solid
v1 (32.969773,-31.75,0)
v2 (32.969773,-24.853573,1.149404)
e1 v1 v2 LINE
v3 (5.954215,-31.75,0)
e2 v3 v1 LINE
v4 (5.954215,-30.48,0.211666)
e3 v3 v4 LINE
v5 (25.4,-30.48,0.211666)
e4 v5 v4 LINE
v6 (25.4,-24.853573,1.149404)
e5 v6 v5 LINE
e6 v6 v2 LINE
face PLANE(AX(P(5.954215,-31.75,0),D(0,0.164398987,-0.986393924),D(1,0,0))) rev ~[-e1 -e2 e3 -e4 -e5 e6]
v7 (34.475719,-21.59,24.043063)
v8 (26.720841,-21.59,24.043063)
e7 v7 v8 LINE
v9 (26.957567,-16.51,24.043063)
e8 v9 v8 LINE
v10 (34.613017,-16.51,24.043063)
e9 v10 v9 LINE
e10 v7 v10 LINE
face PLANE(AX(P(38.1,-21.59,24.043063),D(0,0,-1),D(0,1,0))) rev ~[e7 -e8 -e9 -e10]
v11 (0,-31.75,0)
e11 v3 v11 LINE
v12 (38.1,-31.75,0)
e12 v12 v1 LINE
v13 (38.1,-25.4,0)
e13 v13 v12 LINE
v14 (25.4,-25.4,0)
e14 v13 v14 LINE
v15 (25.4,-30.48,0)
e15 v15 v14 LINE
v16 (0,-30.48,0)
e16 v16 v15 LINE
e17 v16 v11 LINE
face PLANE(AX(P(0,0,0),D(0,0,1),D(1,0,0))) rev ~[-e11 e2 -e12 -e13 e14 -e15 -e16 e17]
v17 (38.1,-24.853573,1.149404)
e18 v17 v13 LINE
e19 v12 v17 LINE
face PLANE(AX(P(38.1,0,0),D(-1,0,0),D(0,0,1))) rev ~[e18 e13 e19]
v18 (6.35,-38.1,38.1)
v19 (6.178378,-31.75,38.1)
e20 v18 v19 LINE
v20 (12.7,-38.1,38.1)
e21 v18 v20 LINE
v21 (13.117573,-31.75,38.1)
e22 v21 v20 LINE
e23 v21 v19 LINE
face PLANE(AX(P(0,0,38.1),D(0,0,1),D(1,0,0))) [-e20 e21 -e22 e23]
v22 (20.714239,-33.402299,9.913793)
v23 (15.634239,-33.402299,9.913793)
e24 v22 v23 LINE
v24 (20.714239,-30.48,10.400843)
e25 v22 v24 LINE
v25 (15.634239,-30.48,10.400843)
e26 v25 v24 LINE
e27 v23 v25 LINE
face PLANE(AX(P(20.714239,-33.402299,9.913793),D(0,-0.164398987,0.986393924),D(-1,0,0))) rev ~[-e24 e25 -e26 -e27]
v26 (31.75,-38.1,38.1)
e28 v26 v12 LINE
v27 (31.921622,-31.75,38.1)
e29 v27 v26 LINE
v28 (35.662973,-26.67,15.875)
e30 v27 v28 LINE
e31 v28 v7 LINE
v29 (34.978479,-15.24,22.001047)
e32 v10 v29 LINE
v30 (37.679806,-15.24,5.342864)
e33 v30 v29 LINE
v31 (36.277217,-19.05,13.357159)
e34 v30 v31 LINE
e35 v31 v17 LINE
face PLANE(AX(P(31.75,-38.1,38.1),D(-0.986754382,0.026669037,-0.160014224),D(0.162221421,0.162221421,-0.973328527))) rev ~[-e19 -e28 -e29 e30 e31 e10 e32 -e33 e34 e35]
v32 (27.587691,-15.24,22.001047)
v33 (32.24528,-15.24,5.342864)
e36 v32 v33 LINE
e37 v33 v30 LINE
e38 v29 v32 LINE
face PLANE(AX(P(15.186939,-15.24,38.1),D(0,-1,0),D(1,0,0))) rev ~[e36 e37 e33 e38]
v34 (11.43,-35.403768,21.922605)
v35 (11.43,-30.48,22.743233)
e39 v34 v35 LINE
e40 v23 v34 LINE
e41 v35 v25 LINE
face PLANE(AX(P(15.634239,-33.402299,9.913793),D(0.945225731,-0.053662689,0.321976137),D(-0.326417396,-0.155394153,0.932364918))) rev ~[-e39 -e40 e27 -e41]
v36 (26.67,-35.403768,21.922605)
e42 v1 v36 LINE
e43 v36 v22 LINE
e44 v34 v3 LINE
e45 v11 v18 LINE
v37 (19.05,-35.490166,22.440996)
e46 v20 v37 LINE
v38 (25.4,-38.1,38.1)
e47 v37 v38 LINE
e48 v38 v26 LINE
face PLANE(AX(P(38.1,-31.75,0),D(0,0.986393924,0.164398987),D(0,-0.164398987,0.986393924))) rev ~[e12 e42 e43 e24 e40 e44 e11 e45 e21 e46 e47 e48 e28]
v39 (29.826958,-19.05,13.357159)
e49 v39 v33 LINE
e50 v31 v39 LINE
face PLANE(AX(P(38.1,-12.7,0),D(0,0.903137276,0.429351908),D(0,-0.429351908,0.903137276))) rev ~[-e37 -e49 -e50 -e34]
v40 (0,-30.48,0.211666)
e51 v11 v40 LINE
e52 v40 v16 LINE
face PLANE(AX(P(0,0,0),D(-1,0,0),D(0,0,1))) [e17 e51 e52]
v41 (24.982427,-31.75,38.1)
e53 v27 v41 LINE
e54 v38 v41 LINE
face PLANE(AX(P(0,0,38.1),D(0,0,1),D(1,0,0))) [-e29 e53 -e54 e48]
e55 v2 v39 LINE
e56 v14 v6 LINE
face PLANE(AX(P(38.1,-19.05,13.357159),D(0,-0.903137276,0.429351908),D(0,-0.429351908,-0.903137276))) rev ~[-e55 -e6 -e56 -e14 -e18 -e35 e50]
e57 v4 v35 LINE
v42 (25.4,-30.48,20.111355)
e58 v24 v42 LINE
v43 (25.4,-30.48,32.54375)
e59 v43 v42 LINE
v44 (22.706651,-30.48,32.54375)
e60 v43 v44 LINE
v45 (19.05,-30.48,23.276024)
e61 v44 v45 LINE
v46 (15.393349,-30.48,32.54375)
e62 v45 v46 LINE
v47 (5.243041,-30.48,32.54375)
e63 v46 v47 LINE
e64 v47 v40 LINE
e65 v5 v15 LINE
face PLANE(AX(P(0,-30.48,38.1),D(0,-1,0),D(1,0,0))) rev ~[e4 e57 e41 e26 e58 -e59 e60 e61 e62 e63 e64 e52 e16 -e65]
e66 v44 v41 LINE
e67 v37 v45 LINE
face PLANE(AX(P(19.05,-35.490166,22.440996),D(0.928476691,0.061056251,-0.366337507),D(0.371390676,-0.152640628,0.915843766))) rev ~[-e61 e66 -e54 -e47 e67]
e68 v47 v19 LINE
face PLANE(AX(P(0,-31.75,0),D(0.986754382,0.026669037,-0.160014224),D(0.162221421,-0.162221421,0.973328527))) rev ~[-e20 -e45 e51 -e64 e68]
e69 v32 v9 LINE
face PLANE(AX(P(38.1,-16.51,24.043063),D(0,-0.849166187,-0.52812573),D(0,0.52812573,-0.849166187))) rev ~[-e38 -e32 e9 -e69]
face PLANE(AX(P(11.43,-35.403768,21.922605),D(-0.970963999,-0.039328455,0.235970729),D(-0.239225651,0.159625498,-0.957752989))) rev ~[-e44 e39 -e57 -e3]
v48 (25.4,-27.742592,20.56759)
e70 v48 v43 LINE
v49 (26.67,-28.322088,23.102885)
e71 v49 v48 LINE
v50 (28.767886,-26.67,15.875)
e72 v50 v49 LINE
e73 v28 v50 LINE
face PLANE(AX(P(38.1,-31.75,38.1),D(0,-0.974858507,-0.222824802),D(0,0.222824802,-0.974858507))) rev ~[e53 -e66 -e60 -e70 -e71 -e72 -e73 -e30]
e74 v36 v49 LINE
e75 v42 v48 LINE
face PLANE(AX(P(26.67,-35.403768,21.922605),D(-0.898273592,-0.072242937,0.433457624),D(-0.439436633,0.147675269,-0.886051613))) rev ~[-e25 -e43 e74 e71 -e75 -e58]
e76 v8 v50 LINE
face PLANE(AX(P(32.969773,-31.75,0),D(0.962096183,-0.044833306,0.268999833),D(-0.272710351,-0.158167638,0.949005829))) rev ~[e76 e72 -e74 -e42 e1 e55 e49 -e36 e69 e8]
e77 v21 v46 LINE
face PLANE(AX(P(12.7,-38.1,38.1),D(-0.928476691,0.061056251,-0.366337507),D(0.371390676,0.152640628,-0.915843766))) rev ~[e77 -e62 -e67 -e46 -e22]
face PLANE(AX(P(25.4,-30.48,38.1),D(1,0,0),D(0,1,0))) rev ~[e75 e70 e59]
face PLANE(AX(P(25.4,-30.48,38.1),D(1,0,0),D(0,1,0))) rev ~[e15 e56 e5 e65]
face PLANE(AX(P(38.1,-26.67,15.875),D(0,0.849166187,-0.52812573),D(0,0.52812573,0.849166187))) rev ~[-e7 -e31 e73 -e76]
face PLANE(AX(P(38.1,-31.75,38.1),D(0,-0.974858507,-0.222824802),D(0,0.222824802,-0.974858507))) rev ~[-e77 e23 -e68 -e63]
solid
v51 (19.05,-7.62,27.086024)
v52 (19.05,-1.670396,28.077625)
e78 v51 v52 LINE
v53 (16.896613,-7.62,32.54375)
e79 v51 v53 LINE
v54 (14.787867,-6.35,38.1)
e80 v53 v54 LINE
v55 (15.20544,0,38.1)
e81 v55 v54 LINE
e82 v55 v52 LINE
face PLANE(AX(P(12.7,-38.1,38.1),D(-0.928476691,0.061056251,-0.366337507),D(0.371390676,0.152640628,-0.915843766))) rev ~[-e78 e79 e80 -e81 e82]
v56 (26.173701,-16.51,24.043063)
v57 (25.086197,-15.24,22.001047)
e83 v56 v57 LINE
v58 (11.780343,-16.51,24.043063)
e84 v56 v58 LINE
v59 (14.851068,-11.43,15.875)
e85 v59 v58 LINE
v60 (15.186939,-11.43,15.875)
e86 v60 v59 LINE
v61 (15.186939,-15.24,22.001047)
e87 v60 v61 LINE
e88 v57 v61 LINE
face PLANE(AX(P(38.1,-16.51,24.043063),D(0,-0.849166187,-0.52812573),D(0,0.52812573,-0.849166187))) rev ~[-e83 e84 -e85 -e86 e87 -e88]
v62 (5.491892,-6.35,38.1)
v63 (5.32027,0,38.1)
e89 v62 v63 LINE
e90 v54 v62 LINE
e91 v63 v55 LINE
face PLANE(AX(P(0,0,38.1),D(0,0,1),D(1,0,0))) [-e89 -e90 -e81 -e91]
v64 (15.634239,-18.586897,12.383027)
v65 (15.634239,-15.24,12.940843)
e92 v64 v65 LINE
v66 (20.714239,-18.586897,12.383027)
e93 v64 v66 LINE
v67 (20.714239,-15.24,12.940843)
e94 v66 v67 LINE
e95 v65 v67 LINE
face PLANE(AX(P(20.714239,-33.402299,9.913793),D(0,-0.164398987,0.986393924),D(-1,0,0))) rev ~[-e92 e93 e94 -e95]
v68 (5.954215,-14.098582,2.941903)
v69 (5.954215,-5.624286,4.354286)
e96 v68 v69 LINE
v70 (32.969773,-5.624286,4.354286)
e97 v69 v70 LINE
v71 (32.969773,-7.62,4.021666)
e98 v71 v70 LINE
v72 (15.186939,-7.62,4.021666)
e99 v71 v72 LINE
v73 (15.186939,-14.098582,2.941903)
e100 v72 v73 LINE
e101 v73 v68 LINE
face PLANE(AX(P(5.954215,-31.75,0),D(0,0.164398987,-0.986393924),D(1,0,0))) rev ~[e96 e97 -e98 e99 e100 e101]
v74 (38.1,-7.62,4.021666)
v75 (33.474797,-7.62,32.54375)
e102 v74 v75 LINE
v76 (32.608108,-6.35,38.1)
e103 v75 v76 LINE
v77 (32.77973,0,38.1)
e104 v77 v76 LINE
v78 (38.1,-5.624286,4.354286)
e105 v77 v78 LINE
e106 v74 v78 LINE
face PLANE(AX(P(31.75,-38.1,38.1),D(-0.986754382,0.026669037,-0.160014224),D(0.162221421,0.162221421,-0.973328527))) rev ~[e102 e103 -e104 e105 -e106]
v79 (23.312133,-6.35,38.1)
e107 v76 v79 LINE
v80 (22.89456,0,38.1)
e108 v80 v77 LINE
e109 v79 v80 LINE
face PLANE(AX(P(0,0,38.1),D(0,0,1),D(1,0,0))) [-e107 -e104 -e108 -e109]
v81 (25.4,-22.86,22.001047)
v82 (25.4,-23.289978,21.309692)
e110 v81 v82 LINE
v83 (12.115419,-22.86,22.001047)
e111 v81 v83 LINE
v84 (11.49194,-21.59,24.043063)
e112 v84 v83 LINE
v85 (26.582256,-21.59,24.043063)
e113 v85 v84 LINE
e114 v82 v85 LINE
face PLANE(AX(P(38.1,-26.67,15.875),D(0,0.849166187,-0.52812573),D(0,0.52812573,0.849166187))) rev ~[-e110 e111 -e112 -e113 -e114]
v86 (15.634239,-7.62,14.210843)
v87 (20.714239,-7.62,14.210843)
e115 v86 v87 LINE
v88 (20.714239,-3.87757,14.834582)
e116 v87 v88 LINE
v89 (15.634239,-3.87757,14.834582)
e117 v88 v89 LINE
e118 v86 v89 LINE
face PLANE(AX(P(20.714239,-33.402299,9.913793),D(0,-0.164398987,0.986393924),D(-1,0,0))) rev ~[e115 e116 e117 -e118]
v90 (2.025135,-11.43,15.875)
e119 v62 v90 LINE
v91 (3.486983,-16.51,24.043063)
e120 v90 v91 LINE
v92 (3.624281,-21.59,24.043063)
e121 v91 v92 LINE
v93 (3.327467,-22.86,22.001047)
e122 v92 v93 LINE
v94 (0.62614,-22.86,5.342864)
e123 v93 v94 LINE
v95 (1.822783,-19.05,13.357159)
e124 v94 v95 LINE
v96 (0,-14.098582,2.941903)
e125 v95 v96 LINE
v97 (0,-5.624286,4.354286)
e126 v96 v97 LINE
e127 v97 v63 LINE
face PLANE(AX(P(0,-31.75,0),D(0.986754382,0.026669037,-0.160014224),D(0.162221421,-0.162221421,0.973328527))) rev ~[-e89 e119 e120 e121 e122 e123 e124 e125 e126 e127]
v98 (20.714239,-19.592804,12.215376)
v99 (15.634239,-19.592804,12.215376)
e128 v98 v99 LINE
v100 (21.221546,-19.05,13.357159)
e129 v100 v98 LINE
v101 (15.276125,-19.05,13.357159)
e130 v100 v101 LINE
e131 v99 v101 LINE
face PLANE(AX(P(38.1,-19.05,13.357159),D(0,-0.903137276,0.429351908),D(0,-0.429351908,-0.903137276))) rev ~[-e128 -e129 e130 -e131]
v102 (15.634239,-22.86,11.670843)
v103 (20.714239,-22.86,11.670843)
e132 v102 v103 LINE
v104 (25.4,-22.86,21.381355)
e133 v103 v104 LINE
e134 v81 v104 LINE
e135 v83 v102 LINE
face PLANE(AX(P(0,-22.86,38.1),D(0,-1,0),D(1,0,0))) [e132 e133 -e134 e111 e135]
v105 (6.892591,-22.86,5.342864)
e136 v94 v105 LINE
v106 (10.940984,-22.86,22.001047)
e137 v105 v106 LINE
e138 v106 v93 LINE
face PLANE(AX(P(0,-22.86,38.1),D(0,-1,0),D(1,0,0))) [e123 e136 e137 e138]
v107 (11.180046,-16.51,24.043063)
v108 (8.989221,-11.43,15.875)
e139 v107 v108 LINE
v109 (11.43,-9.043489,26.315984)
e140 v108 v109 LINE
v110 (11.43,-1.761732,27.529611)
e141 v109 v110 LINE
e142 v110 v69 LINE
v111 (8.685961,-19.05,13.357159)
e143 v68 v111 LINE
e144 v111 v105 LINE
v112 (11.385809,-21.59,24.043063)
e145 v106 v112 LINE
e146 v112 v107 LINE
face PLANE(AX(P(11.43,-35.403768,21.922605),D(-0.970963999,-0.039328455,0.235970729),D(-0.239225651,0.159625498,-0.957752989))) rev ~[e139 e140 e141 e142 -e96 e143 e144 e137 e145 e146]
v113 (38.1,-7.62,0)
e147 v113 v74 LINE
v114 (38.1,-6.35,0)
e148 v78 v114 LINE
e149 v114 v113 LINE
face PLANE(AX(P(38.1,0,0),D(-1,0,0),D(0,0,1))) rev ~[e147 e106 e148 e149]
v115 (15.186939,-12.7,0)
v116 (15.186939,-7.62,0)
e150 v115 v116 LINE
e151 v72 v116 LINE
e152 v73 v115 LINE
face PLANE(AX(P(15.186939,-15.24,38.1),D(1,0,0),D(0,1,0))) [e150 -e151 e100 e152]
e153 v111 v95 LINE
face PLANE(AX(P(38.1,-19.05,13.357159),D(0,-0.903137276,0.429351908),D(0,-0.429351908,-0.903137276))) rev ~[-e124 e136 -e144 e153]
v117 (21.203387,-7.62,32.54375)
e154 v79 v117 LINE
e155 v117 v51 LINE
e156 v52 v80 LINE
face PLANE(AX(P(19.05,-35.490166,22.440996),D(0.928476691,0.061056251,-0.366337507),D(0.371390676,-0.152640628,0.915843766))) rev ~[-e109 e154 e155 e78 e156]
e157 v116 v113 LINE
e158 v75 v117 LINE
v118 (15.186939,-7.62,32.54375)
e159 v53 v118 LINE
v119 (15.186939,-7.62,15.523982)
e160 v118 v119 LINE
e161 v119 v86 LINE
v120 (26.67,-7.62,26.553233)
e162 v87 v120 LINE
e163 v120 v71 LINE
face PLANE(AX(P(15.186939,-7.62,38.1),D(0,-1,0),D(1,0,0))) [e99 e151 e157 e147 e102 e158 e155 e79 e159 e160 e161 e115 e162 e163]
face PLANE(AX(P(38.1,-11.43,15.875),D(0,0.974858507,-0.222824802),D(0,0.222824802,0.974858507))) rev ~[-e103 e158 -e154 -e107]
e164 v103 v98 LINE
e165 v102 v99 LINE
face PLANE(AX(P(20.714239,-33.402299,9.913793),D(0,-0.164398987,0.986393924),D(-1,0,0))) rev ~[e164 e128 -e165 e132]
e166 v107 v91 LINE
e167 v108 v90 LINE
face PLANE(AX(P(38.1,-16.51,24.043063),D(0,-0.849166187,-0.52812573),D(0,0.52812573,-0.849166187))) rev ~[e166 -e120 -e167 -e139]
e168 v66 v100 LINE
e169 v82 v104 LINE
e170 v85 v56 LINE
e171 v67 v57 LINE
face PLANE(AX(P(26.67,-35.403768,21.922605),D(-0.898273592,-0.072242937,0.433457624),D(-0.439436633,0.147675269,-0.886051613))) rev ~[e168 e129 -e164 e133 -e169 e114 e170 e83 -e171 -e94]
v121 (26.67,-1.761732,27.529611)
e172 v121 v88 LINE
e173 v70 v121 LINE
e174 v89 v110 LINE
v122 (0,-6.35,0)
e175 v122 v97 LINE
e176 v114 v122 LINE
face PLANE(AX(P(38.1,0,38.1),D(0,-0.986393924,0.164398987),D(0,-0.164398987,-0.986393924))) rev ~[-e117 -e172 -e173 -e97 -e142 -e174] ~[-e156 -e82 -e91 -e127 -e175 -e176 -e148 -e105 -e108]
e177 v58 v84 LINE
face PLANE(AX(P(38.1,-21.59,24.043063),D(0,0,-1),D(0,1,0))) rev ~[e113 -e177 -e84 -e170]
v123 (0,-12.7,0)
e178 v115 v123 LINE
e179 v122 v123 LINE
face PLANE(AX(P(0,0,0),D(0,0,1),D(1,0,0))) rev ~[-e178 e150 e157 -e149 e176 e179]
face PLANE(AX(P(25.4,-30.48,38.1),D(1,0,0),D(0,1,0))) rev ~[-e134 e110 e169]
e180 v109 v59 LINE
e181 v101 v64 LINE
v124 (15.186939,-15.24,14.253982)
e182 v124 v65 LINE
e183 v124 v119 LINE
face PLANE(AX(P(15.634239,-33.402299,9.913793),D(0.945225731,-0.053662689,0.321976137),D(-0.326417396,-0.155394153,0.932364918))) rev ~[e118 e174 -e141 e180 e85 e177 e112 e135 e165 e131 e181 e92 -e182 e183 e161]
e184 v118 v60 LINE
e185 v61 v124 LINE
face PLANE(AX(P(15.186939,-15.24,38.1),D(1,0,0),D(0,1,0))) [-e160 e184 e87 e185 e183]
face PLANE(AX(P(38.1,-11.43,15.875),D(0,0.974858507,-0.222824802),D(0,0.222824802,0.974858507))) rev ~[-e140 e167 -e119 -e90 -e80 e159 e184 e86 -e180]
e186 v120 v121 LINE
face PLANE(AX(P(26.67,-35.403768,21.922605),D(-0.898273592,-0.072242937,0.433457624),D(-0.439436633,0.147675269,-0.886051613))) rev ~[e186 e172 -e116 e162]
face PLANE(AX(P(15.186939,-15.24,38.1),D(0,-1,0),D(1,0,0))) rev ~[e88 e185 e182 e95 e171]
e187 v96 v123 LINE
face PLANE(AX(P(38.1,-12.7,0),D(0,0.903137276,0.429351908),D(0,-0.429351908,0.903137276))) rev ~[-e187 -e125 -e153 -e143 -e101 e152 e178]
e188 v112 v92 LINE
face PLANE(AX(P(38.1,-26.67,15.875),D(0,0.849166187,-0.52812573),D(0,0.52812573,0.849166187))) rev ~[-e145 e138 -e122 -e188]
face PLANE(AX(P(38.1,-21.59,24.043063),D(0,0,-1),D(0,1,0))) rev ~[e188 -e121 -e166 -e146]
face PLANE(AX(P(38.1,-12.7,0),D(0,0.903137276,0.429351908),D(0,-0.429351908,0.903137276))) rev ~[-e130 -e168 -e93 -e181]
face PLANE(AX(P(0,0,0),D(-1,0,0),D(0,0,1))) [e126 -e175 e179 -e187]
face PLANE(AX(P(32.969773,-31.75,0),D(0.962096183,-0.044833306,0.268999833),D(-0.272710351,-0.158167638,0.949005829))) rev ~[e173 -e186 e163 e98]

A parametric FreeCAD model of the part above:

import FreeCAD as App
import Part
import Sketcher
from FreeCAD import Vector
Q = App.Units.Quantity


def add_polygon(sketch, points):
    """Adds a closed chain of lines whose ends are joined by coincident constraints."""
    first, n = sketch.GeometryCount, len(points)
    for a, b in zip(points, points[1:] + points[:1]):
        sketch.addGeometry(Part.LineSegment(App.Vector(*a, 0), App.Vector(*b, 0)), False)
    for i in range(n):
        sketch.addConstraint(Sketcher.Constraint("Coincident", first + i, 2, first + (i + 1) % n, 1))

doc = App.newDocument("Part")
params = doc.addObject("Spreadsheet::Sheet", "Params")
for row, (alias, value) in enumerate([
    ("sketch1_width", "1.5 in"),
    ("pad1_length", "1.5 in"),
    ("sketch2_width", "1 in"),
    ("sketch2_width2", "0.2 in"),
    ("sketch2_width3", "0.5 in"),
    ("sketch2_height", "1.5 in"),
    ("pocket1_length", "49.38614 mm"),
    ("sketch3_width", "0.5 in"),
    ("sketch3_width2", "0.2 in"),
    ("pocket2_length", "61.12182 mm"),
    ("sketch4_width", "1 in"),
    ("sketch4_height", "0.3 in"),
    ("pocket3_length", "45.89091 mm"),
], start=1):
    params.set(f"A{row}", alias)
    params.set(f"B{row}", "=" + value)
    params.setAlias(f"B{row}", alias)

body = doc.addObject("PartDesign::Body", "Body")
body.AllowCompound = True

# Sketch on XZ plane
sketch1 = body.newObject("Sketcher::SketchObject", "Sketch")
sketch1.AttachmentSupport = (doc.getObject("XZ_Plane"), [""])
sketch1.MapMode = "FlatFace"
add_polygon(sketch1, [(0, 38.1), (0, 0), (38.1, 0), (38.1, 38.1)])  # lines 0-3
sketch1.addConstraint([
    Sketcher.Constraint("Vertical", 0),
    Sketcher.Constraint("Horizontal", 1),
    Sketcher.Constraint("Vertical", 2),
    Sketcher.Constraint("Horizontal", 3),
    Sketcher.Constraint("Coincident", 0, 2, -1, 1),
    Sketcher.Constraint("Equal", 3, 0),
    Sketcher.Constraint("DistanceX", 1, 1, 1, 2, Q("1.5 in")),
])
sketch1.setExpression("Constraints[10]", "Params.sketch1_width")
pad1 = body.newObject("PartDesign::Pad", "Pad")
pad1.Profile = sketch1
pad1.setExpression("Length", "Params.pad1_length")

# Sketch on YZ plane
sketch2 = body.newObject("Sketcher::SketchObject", "Sketch001")
sketch2.AttachmentSupport = (doc.getObject("YZ_Plane"), [""])
sketch2.MapMode = "FlatFace"
sketch2.AttachmentOffset = App.Placement(Vector(0, 0, 1.5 * 25.4), App.Rotation())
add_polygon(sketch2, [(-11.43, 15.875), (-6.35, 38.1), (-31.75, 38.1), (-26.67, 15.875), (-21.59, 24.043063), (-16.51, 24.043063)])  # lines 0-5
add_polygon(sketch2, [(-6.35, 0), (0, 0), (0, 38.1)])  # lines 6-8
add_polygon(sketch2, [(-25.4, 0), (-12.7, 0), (-19.05, 13.357159)])  # lines 9-11
add_polygon(sketch2, [(-38.1, 0), (-31.75, 0), (-38.1, 38.1)])  # lines 12-14
sketch2.addConstraint([
    Sketcher.Constraint("Horizontal", 1),
    Sketcher.Constraint("Horizontal", 4),
    Sketcher.Constraint("Horizontal", 6),
    Sketcher.Constraint("Vertical", 7),
    Sketcher.Constraint("Horizontal", 9),
    Sketcher.Constraint("Horizontal", 12),
    Sketcher.Constraint("Vertical", 14),
    Sketcher.Constraint("Coincident", 6, 2, -1, 1),
    Sketcher.Constraint("PointOnObject", 9, 2, -1),
    Sketcher.Constraint("PointOnObject", 12, 2, -1),
    Sketcher.Constraint("Horizontal", 2, 2, 5, 2),
    Sketcher.Constraint("Horizontal", 1, 2, 7, 2),
    Sketcher.Constraint("Horizontal", 7, 2, 13, 2),
    Sketcher.Constraint("Vertical", 0, 2, 8, 2),
    Sketcher.Constraint("Vertical", 1, 2, 12, 2),
    Sketcher.Constraint("Equal", 6, 12),
    Sketcher.Constraint("Equal", 0, 2),
    Sketcher.Constraint("Equal", 3, 5),
    Sketcher.Constraint("Equal", 10, 11),
    Sketcher.Constraint("DistanceX", 1, 2, 1, 1, Q("1 in")),
    Sketcher.Constraint("DistanceX", 4, 1, 4, 2, Q("0.2 in")),
    Sketcher.Constraint("DistanceX", 9, 1, 9, 2, Q("0.5 in")),
    Sketcher.Constraint("DistanceY", 7, 1, 7, 2, Q("1.5 in")),
    Sketcher.Constraint("DistanceX", 11, 2, -1, 1, Q("1 in")),
    Sketcher.Constraint("DistanceX", 14, 2, 9, 2, Q("1 in")),
    Sketcher.Constraint("DistanceX", 1, 2, 2, 2, Q("0.2 in")),
    Sketcher.Constraint("DistanceY", -1, 1, 2, 2, Q("0.625 in")),
    Sketcher.Constraint("Distance", 3, 9.618922),
    Sketcher.Constraint("DistanceY", -1, 1, 10, 2, 13.357159),
])
sketch2.setExpression("Constraints[34]", "Params.sketch2_width")
sketch2.setExpression("Constraints[35]", "Params.sketch2_width2")
sketch2.setExpression("Constraints[36]", "Params.sketch2_width3")
sketch2.setExpression("Constraints[37]", "Params.sketch2_height")
pocket1 = body.newObject("PartDesign::Pocket", "Pocket")
pocket1.Profile = sketch2
pocket1.setExpression("Length", "Params.pocket1_length")

# Sketch on an angled plane
sketch3 = body.newObject("Sketcher::SketchObject", "Sketch002")
sketch3.Placement = App.Placement(Vector(0, -30.891892, -5.148649), App.Rotation(Vector(1, 0, 0), Vector(0, -0.164398987, 0.986393924), Vector(0, -0.986393924, -0.164398987), "ZXY"))
add_polygon(sketch3, [(0, 5.219668), (6.35, 43.84521), (0, 43.84521)])  # lines 0-2
add_polygon(sketch3, [(25.4, 43.84521), (12.7, 43.84521), (19.05, 27.97021)])  # lines 3-5
add_polygon(sketch3, [(38.1, 43.84521), (31.75, 43.84521), (38.1, 5.219668)])  # lines 6-8
add_polygon(sketch3, [(11.43, 27.444668), (5.954215, 5.219668), (32.969773, 5.219668), (26.67, 27.444668), (20.714239, 15.27021), (15.634239, 15.27021)])  # lines 9-14
sketch3.addConstraint([
    Sketcher.Constraint("Horizontal", 1),
    Sketcher.Constraint("Vertical", 2),
    Sketcher.Constraint("Horizontal", 3),
    Sketcher.Constraint("Horizontal", 6),
    Sketcher.Constraint("Vertical", 8),
    Sketcher.Constraint("Horizontal", 10),
    Sketcher.Constraint("Horizontal", 13),
    Sketcher.Constraint("PointOnObject", 1, 2, -2),
    Sketcher.Constraint("Horizontal", 1, 2, 3, 2),
    Sketcher.Constraint("Horizontal", 5, 2, 6, 2),
    Sketcher.Constraint("Horizontal", 2, 2, 7, 2),
    Sketcher.Constraint("Horizontal", 7, 2, 9, 2),
    Sketcher.Constraint("Horizontal", 11, 2, 14, 2),
    Sketcher.Constraint("Equal", 1, 6),
    Sketcher.Constraint("Equal", 4, 5),
    Sketcher.Constraint("DistanceX", 3, 2, 3, 1, Q("0.5 in")),
    Sketcher.Constraint("DistanceX", 13, 2, 13, 1, Q("0.2 in")),
    Sketcher.Constraint("DistanceX", -1, 1, 5, 2, Q("1 in")),
    Sketcher.Constraint("DistanceX", 0, 2, 6, 2, Q("1 in")),
    Sketcher.Constraint("DistanceX", 3, 2, 7, 2, Q("1 in")),
    Sketcher.Constraint("DistanceX", 4, 2, 11, 2, Q("0.3 in")),
    Sketcher.Constraint("DistanceY", 12, 2, 4, 2, Q("0.5 in")),
    Sketcher.Constraint("DistanceX", 14, 2, 4, 2, Q("0.3 in")),
    Sketcher.Constraint("DistanceY", 4, 2, 3, 2, Q("0.625 in")),
    Sketcher.Constraint("Distance", 11, 23.100601),
    Sketcher.Constraint("DistanceX", 10, 1, 10, 2, 27.015558),
    Sketcher.Constraint("Distance", 0, 39.144029),
    Sketcher.Constraint("DistanceY", -1, 1, 0, 2, 43.84521),
    Sketcher.Constraint("DistanceY", -1, 1, 11, 2, 27.444668),
    Sketcher.Constraint("DistanceX", -1, 1, 12, 2, 20.714239),
])
sketch3.setExpression("Constraints[30]", "Params.sketch3_width")
sketch3.setExpression("Constraints[31]", "Params.sketch3_width2")
pocket2 = body.newObject("PartDesign::Pocket", "Pocket001")
pocket2.Profile = sketch3
pocket2.setExpression("Length", "Params.pocket2_length")

# Sketch on XY plane
sketch4 = body.newObject("Sketcher::SketchObject", "Sketch003")
sketch4.AttachmentSupport = (doc.getObject("XY_Plane"), [""])
sketch4.MapMode = "FlatFace"
sketch4.AttachmentOffset = App.Placement(Vector(0, 0, 1.5 * 25.4), App.Rotation())
add_polygon(sketch4, [(15.186939, -7.62), (15.186939, -15.24), (38.755775, -15.24), (38.755775, -7.62)])  # lines 0-3
add_polygon(sketch4, [(0, -22.86), (0, -30.48), (25.4, -30.48), (25.4, -22.86)])  # lines 4-7
sketch4.addConstraint([
    Sketcher.Constraint("Vertical", 0),
    Sketcher.Constraint("Horizontal", 1),
    Sketcher.Constraint("Vertical", 2),
    Sketcher.Constraint("Horizontal", 3),
    Sketcher.Constraint("Vertical", 4),
    Sketcher.Constraint("Horizontal", 5),
    Sketcher.Constraint("Vertical", 6),
    Sketcher.Constraint("Horizontal", 7),
    Sketcher.Constraint("PointOnObject", 4, 2, -2),
    Sketcher.Constraint("Equal", 2, 4),
    Sketcher.Constraint("DistanceX", 5, 1, 5, 2, Q("1 in")),
    Sketcher.Constraint("DistanceY", 0, 2, 0, 1, Q("0.3 in")),
    Sketcher.Constraint("DistanceY", 0, 2, -1, 1, Q("0.6 in")),
    Sketcher.Constraint("DistanceY", 4, 2, -1, 1, Q("1.2 in")),
    Sketcher.Constraint("DistanceX", 1, 1, 1, 2, 23.568836),
    Sketcher.Constraint("DistanceX", -1, 1, 0, 2, 15.186939),
])
sketch4.setExpression("Constraints[18]", "Params.sketch4_width")
sketch4.setExpression("Constraints[19]", "Params.sketch4_height")
pocket3 = body.newObject("PartDesign::Pocket", "Pocket002")
pocket3.Profile = sketch4
pocket3.setExpression("Length", "Params.pocket3_length")

doc.recompute()
